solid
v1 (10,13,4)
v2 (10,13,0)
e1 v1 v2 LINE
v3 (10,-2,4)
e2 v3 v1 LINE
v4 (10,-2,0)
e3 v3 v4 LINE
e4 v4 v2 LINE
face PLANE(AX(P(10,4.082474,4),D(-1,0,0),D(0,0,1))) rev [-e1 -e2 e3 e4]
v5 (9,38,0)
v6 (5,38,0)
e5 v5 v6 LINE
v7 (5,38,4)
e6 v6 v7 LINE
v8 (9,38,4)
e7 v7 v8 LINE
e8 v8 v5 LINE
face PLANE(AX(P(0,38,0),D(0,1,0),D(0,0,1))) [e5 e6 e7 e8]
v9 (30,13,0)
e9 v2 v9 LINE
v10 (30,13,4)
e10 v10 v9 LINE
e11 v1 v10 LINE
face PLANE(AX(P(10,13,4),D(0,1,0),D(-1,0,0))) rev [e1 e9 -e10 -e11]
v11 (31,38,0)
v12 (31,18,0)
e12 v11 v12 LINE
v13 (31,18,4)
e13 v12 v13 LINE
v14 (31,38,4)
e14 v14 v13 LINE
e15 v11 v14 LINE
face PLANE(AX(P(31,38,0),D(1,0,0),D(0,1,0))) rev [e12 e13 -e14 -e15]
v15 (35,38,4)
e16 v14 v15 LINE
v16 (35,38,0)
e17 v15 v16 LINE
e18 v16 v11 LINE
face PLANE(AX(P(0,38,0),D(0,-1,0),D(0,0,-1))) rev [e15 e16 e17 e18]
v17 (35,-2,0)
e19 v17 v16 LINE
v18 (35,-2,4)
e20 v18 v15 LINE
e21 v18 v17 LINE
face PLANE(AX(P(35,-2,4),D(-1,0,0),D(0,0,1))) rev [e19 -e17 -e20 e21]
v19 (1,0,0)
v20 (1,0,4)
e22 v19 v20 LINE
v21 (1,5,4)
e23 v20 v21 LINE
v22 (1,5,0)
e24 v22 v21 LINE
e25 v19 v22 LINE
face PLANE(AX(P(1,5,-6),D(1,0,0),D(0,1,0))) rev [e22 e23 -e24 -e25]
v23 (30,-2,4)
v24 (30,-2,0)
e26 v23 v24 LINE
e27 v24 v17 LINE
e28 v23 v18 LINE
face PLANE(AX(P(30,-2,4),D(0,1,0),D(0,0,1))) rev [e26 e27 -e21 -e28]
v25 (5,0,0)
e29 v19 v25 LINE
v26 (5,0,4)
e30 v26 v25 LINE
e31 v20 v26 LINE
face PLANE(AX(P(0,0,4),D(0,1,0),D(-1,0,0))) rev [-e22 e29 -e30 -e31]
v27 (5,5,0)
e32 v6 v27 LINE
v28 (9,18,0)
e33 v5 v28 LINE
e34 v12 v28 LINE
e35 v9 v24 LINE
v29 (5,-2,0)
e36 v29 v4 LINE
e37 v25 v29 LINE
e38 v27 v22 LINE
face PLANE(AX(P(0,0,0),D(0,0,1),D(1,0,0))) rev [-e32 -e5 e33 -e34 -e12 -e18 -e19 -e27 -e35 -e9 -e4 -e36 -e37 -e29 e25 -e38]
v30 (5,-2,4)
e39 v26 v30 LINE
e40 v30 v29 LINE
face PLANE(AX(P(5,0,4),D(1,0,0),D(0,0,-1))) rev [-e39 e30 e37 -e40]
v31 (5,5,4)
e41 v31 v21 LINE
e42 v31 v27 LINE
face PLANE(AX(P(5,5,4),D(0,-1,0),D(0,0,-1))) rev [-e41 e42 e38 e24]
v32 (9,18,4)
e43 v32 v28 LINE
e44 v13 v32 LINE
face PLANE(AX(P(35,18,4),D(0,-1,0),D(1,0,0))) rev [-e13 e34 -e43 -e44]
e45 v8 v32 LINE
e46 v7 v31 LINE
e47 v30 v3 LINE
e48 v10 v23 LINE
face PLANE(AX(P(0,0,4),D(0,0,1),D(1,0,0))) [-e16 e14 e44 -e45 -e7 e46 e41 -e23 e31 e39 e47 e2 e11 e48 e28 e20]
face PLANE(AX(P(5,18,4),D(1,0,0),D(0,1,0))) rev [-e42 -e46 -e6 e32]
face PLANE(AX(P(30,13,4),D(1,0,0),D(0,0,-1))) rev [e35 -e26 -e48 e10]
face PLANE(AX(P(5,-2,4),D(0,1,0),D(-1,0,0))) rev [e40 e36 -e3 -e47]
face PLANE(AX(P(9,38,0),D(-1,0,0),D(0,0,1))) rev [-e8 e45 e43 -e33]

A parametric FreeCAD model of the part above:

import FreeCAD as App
import Part
import Sketcher

doc = App.newDocument("Part")
body = doc.addObject("PartDesign::Body", "Body")

# Sketch on XY plane
sketch1 = doc.addObject("Sketcher::SketchObject", "Sketch")
body.addObject(sketch1)
sketch1.AttachmentSupport = (doc.XY_Plane, [""])
sketch1.MapMode = "FlatFace"
sketch1.addGeometry(Part.LineSegment(App.Vector(0, 0, 0), App.Vector(5, 0, 0)), False)
sketch1.addGeometry(Part.LineSegment(App.Vector(5, 0, 0), App.Vector(5, -2, 0)), False)
sketch1.addGeometry(Part.LineSegment(App.Vector(5, -2, 0), App.Vector(10, -2, 0)), False)
sketch1.addGeometry(Part.LineSegment(App.Vector(10, -2, 0), App.Vector(10, 13, 0)), False)
sketch1.addGeometry(Part.LineSegment(App.Vector(10, 13, 0), App.Vector(30, 13, 0)), False)
sketch1.addGeometry(Part.LineSegment(App.Vector(30, 13, 0), App.Vector(30, -2, 0)), False)
sketch1.addGeometry(Part.LineSegment(App.Vector(30, -2, 0), App.Vector(35, -2, 0)), False)
sketch1.addGeometry(Part.LineSegment(App.Vector(35, -2, 0), App.Vector(35, 18, 0)), False)
sketch1.addGeometry(Part.LineSegment(App.Vector(35, 18, 0), App.Vector(5, 18, 0)), False)
sketch1.addGeometry(Part.LineSegment(App.Vector(5, 18, 0), App.Vector(5, 5, 0)), False)
sketch1.addGeometry(Part.LineSegment(App.Vector(5, 5, 0), App.Vector(0, 5, 0)), False)
sketch1.addGeometry(Part.LineSegment(App.Vector(0, 5, 0), App.Vector(0, 0, 0)), False)
sketch1.addConstraint(Sketcher.Constraint("Coincident", 0, 2, 1, 1))
sketch1.addConstraint(Sketcher.Constraint("Coincident", 1, 2, 2, 1))
sketch1.addConstraint(Sketcher.Constraint("Coincident", 2, 2, 3, 1))
sketch1.addConstraint(Sketcher.Constraint("Coincident", 3, 2, 4, 1))
sketch1.addConstraint(Sketcher.Constraint("Coincident", 4, 2, 5, 1))
sketch1.addConstraint(Sketcher.Constraint("Coincident", 5, 2, 6, 1))
sketch1.addConstraint(Sketcher.Constraint("Coincident", 6, 2, 7, 1))
sketch1.addConstraint(Sketcher.Constraint("Coincident", 7, 2, 8, 1))
sketch1.addConstraint(Sketcher.Constraint("Coincident", 8, 2, 9, 1))
sketch1.addConstraint(Sketcher.Constraint("Coincident", 9, 2, 10, 1))
sketch1.addConstraint(Sketcher.Constraint("Coincident", 10, 2, 11, 1))
sketch1.addConstraint(Sketcher.Constraint("Coincident", 11, 2, 0, 1))
sketch1.addConstraint(Sketcher.Constraint("Horizontal", 0))
sketch1.addConstraint(Sketcher.Constraint("Vertical", 1))
sketch1.addConstraint(Sketcher.Constraint("Horizontal", 2))
sketch1.addConstraint(Sketcher.Constraint("Vertical", 3))
sketch1.addConstraint(Sketcher.Constraint("Horizontal", 4))
sketch1.addConstraint(Sketcher.Constraint("Vertical", 5))
sketch1.addConstraint(Sketcher.Constraint("Horizontal", 6))
sketch1.addConstraint(Sketcher.Constraint("Vertical", 7))
sketch1.addConstraint(Sketcher.Constraint("Horizontal", 8))
sketch1.addConstraint(Sketcher.Constraint("Vertical", 9))
sketch1.addConstraint(Sketcher.Constraint("Horizontal", 10))
sketch1.addConstraint(Sketcher.Constraint("Vertical", 11))
sketch1.addConstraint(Sketcher.Constraint("Coincident", 11, 2, -1, 1))
sketch1.addConstraint(Sketcher.Constraint("Horizontal", 2, 2, 5, 2))
sketch1.addConstraint(Sketcher.Constraint("Vertical", 1, 2, 8, 2))
sketch1.addConstraint(Sketcher.Constraint("Equal", 0, 2))
sketch1.addConstraint(Sketcher.Constraint("Equal", 2, 6))
sketch1.addConstraint(Sketcher.Constraint("Equal", 4, 7))
sketch1.addConstraint(Sketcher.Constraint("Equal", 10, 11))
sketch1.addConstraint(Sketcher.Constraint("DistanceX", 0, 1, 0, 2, 5.0))
sketch1.addConstraint(Sketcher.Constraint("DistanceX", 4, 1, 4, 2, 20.0))
sketch1.addConstraint(Sketcher.Constraint("DistanceY", 1, 2, 1, 1, 2.0))
sketch1.addConstraint(Sketcher.Constraint("DistanceY", 3, 1, 3, 2, 15.0))
pad1 = doc.addObject("PartDesign::Pad", "Pad")
body.addObject(pad1)
pad1.Profile = sketch1
pad1.Length = 4

# Sketch on XZ plane
sketch2 = doc.addObject("Sketcher::SketchObject", "Sketch001")
body.addObject(sketch2)
sketch2.AttachmentSupport = (doc.XZ_Plane, [""])
sketch2.MapMode = "FlatFace"
sketch2.AttachmentOffset = App.Placement(App.Vector(0, 0, -18), App.Rotation())
sketch2.addGeometry(Part.LineSegment(App.Vector(10, 0, 0), App.Vector(10, 4, 0)), False)
sketch2.addGeometry(Part.LineSegment(App.Vector(10, 4, 0), App.Vector(30, 4, 0)), False)
sketch2.addGeometry(Part.LineSegment(App.Vector(30, 4, 0), App.Vector(30, 0, 0)), False)
sketch2.addGeometry(Part.LineSegment(App.Vector(30, 0, 0), App.Vector(10, 0, 0)), False)
sketch2.addConstraint(Sketcher.Constraint("Coincident", 0, 2, 1, 1))
sketch2.addConstraint(Sketcher.Constraint("Coincident", 1, 2, 2, 1))
sketch2.addConstraint(Sketcher.Constraint("Coincident", 2, 2, 3, 1))
sketch2.addConstraint(Sketcher.Constraint("Coincident", 3, 2, 0, 1))
sketch2.addConstraint(Sketcher.Constraint("Vertical", 0))
sketch2.addConstraint(Sketcher.Constraint("Horizontal", 1))
sketch2.addConstraint(Sketcher.Constraint("Vertical", 2))
sketch2.addConstraint(Sketcher.Constraint("Horizontal", 3))
sketch2.addConstraint(Sketcher.Constraint("PointOnObject", 2, 2, -1))
sketch2.addConstraint(Sketcher.Constraint("DistanceX", 1, 1, 1, 2, 20.0))
sketch2.addConstraint(Sketcher.Constraint("DistanceY", 0, 1, 0, 2, 4.0))
sketch2.addConstraint(Sketcher.Constraint("DistanceX", -1, 1, 0, 2, 10.0))
pad2 = doc.addObject("PartDesign::Pad", "Pad001")
body.addObject(pad2)
pad2.Profile = sketch2
pad2.Length = 15
pad2.Reversed = True

# Sketch on XY plane
sketch3 = doc.addObject("Sketcher::SketchObject", "Sketch002")
body.addObject(sketch3)
sketch3.AttachmentSupport = (doc.XY_Plane, [""])
sketch3.MapMode = "FlatFace"
sketch3.AttachmentOffset = App.Placement(App.Vector(0, 0, 4), App.Rotation())
sketch3.addGeometry(Part.LineSegment(App.Vector(17.25, 29.5, 0), App.Vector(17.25, 26.5, 0)), False)
sketch3.addGeometry(Part.LineSegment(App.Vector(17.25, 26.5, 0), App.Vector(22.75, 26.5, 0)), False)
sketch3.addGeometry(Part.LineSegment(App.Vector(22.75, 26.5, 0), App.Vector(22.75, 29.5, 0)), False)
sketch3.addGeometry(Part.LineSegment(App.Vector(22.75, 29.5, 0), App.Vector(17.25, 29.5, 0)), False)
sketch3.addConstraint(Sketcher.Constraint("Coincident", 0, 2, 1, 1))
sketch3.addConstraint(Sketcher.Constraint("Coincident", 1, 2, 2, 1))
sketch3.addConstraint(Sketcher.Constraint("Coincident", 2, 2, 3, 1))
sketch3.addConstraint(Sketcher.Constraint("Coincident", 3, 2, 0, 1))
sketch3.addConstraint(Sketcher.Constraint("Vertical", 0))
sketch3.addConstraint(Sketcher.Constraint("Horizontal", 1))
sketch3.addConstraint(Sketcher.Constraint("Vertical", 2))
sketch3.addConstraint(Sketcher.Constraint("Horizontal", 3))
sketch3.addConstraint(Sketcher.Constraint("DistanceY", 0, 2, 0, 1, 3.0))
sketch3.addConstraint(Sketcher.Constraint("DistanceX", 1, 1, 1, 2, 5.5))
sketch3.addConstraint(Sketcher.Constraint("DistanceY", -1, 1, 0, 2, 26.5))
sketch3.addConstraint(Sketcher.Constraint("DistanceX", -1, 1, 0, 2, 17.25))
pocket1 = doc.addObject("PartDesign::Pocket", "Pocket")
body.addObject(pocket1)
pocket1.Profile = sketch3
pocket1.Length = 15

# Sketch on XY plane
sketch4 = doc.addObject("Sketcher::SketchObject", "Sketch003")
body.addObject(sketch4)
sketch4.AttachmentSupport = (doc.XY_Plane, [""])
sketch4.MapMode = "FlatFace"
sketch4.AttachmentOffset = App.Placement(App.Vector(0, 0, 4), App.Rotation())
sketch4.addGeometry(Part.LineSegment(App.Vector(10, 33, 0), App.Vector(10, 18, 0)), False)
sketch4.addGeometry(Part.LineSegment(App.Vector(10, 18, 0), App.Vector(30, 18, 0)), False)
sketch4.addGeometry(Part.LineSegment(App.Vector(30, 18, 0), App.Vector(30, 33, 0)), False)
sketch4.addGeometry(Part.LineSegment(App.Vector(30, 33, 0), App.Vector(10, 33, 0)), False)
sketch4.addConstraint(Sketcher.Constraint("Coincident", 0, 2, 1, 1))
sketch4.addConstraint(Sketcher.Constraint("Coincident", 1, 2, 2, 1))
sketch4.addConstraint(Sketcher.Constraint("Coincident", 2, 2, 3, 1))
sketch4.addConstraint(Sketcher.Constraint("Coincident", 3, 2, 0, 1))
sketch4.addConstraint(Sketcher.Constraint("Vertical", 0))
sketch4.addConstraint(Sketcher.Constraint("Horizontal", 1))
sketch4.addConstraint(Sketcher.Constraint("Vertical", 2))
sketch4.addConstraint(Sketcher.Constraint("Horizontal", 3))
sketch4.addConstraint(Sketcher.Constraint("DistanceX", 1, 1, 1, 2, 20.0))
sketch4.addConstraint(Sketcher.Constraint("DistanceY", 0, 2, 0, 1, 15.0))
sketch4.addConstraint(Sketcher.Constraint("DistanceX", -1, 1, 0, 2, 10.0))
sketch4.addConstraint(Sketcher.Constraint("DistanceY", -1, 1, 0, 2, 18.0))
pocket2 = doc.addObject("PartDesign::Pocket", "Pocket001")
body.addObject(pocket2)
pocket2.Profile = sketch4
pocket2.Length = 15

# Sketch on XZ plane
sketch5 = doc.addObject("Sketcher::SketchObject", "Sketch004")
body.addObject(sketch5)
sketch5.AttachmentSupport = (doc.XZ_Plane, [""])
sketch5.MapMode = "FlatFace"
sketch5.AttachmentOffset = App.Placement(App.Vector(0, 0, -18), App.Rotation())
sketch5.addGeometry(Part.LineSegment(App.Vector(5, 0, 0), App.Vector(5, 4, 0)), False)
sketch5.addGeometry(Part.LineSegment(App.Vector(5, 4, 0), App.Vector(9, 4, 0)), False)
sketch5.addGeometry(Part.LineSegment(App.Vector(9, 4, 0), App.Vector(9, 0, 0)), False)
sketch5.addGeometry(Part.LineSegment(App.Vector(9, 0, 0), App.Vector(5, 0, 0)), False)
sketch5.addGeometry(Part.LineSegment(App.Vector(31, 0, 0), App.Vector(31, 4, 0)), False)
sketch5.addGeometry(Part.LineSegment(App.Vector(31, 4, 0), App.Vector(35, 4, 0)), False)
sketch5.addGeometry(Part.LineSegment(App.Vector(35, 4, 0), App.Vector(35, 0, 0)), False)
sketch5.addGeometry(Part.LineSegment(App.Vector(35, 0, 0), App.Vector(31, 0, 0)), False)
sketch5.addConstraint(Sketcher.Constraint("Coincident", 0, 2, 1, 1))
sketch5.addConstraint(Sketcher.Constraint("Coincident", 1, 2, 2, 1))
sketch5.addConstraint(Sketcher.Constraint("Coincident", 2, 2, 3, 1))
sketch5.addConstraint(Sketcher.Constraint("Coincident", 3, 2, 0, 1))
sketch5.addConstraint(Sketcher.Constraint("Coincident", 4, 2, 5, 1))
sketch5.addConstraint(Sketcher.Constraint("Coincident", 5, 2, 6, 1))
sketch5.addConstraint(Sketcher.Constraint("Coincident", 6, 2, 7, 1))
sketch5.addConstraint(Sketcher.Constraint("Coincident", 7, 2, 4, 1))
sketch5.addConstraint(Sketcher.Constraint("Vertical", 0))
sketch5.addConstraint(Sketcher.Constraint("Horizontal", 1))
sketch5.addConstraint(Sketcher.Constraint("Vertical", 2))
sketch5.addConstraint(Sketcher.Constraint("Horizontal", 3))
sketch5.addConstraint(Sketcher.Constraint("Vertical", 4))
sketch5.addConstraint(Sketcher.Constraint("Horizontal", 5))
sketch5.addConstraint(Sketcher.Constraint("Vertical", 6))
sketch5.addConstraint(Sketcher.Constraint("Horizontal", 7))
sketch5.addConstraint(Sketcher.Constraint("PointOnObject", 2, 2, -1))
sketch5.addConstraint(Sketcher.Constraint("PointOnObject", 6, 2, -1))
sketch5.addConstraint(Sketcher.Constraint("Horizontal", 1, 2, 4, 2))
sketch5.addConstraint(Sketcher.Constraint("Equal", 3, 5))
sketch5.addConstraint(Sketcher.Constraint("Equal", 7, 0))
sketch5.addConstraint(Sketcher.Constraint("DistanceX", 1, 1, 1, 2, 4.0))
sketch5.addConstraint(Sketcher.Constraint("DistanceX", -1, 1, 0, 2, 5.0))
sketch5.addConstraint(Sketcher.Constraint("DistanceX", -1, 1, 4, 2, 31.0))
pad3 = doc.addObject("PartDesign::Pad", "Pad002")
body.addObject(pad3)
pad3.Profile = sketch5
pad3.Length = 20
pad3.Reversed = True

# Sketch on XY plane
sketch6 = doc.addObject("Sketcher::SketchObject", "Sketch005")
body.addObject(sketch6)
sketch6.AttachmentSupport = (doc.XY_Plane, [""])
sketch6.MapMode = "FlatFace"
sketch6.AttachmentOffset = App.Placement(App.Vector(0, 0, 4), App.Rotation())
sketch6.addGeometry(Part.LineSegment(App.Vector(0, 5, 0), App.Vector(0, 0, 0)), False)
sketch6.addGeometry(Part.LineSegment(App.Vector(0, 0, 0), App.Vector(1, 0, 0)), False)
sketch6.addGeometry(Part.LineSegment(App.Vector(1, 0, 0), App.Vector(1, 5, 0)), False)
sketch6.addGeometry(Part.LineSegment(App.Vector(1, 5, 0), App.Vector(0, 5, 0)), False)
sketch6.addConstraint(Sketcher.Constraint("Coincident", 0, 2, 1, 1))
sketch6.addConstraint(Sketcher.Constraint("Coincident", 1, 2, 2, 1))
sketch6.addConstraint(Sketcher.Constraint("Coincident", 2, 2, 3, 1))
sketch6.addConstraint(Sketcher.Constraint("Coincident", 3, 2, 0, 1))
sketch6.addConstraint(Sketcher.Constraint("Vertical", 0))
sketch6.addConstraint(Sketcher.Constraint("Horizontal", 1))
sketch6.addConstraint(Sketcher.Constraint("Vertical", 2))
sketch6.addConstraint(Sketcher.Constraint("Horizontal", 3))
sketch6.addConstraint(Sketcher.Constraint("Coincident", 0, 2, -1, 1))
sketch6.addConstraint(Sketcher.Constraint("DistanceX", 1, 1, 1, 2, 1.0))
sketch6.addConstraint(Sketcher.Constraint("DistanceY", 0, 2, 0, 1, 5.0))
pocket3 = doc.addObject("PartDesign::Pocket", "Pocket002")
body.addObject(pocket3)
pocket3.Profile = sketch6
pocket3.Length = 10

doc.recompute()
